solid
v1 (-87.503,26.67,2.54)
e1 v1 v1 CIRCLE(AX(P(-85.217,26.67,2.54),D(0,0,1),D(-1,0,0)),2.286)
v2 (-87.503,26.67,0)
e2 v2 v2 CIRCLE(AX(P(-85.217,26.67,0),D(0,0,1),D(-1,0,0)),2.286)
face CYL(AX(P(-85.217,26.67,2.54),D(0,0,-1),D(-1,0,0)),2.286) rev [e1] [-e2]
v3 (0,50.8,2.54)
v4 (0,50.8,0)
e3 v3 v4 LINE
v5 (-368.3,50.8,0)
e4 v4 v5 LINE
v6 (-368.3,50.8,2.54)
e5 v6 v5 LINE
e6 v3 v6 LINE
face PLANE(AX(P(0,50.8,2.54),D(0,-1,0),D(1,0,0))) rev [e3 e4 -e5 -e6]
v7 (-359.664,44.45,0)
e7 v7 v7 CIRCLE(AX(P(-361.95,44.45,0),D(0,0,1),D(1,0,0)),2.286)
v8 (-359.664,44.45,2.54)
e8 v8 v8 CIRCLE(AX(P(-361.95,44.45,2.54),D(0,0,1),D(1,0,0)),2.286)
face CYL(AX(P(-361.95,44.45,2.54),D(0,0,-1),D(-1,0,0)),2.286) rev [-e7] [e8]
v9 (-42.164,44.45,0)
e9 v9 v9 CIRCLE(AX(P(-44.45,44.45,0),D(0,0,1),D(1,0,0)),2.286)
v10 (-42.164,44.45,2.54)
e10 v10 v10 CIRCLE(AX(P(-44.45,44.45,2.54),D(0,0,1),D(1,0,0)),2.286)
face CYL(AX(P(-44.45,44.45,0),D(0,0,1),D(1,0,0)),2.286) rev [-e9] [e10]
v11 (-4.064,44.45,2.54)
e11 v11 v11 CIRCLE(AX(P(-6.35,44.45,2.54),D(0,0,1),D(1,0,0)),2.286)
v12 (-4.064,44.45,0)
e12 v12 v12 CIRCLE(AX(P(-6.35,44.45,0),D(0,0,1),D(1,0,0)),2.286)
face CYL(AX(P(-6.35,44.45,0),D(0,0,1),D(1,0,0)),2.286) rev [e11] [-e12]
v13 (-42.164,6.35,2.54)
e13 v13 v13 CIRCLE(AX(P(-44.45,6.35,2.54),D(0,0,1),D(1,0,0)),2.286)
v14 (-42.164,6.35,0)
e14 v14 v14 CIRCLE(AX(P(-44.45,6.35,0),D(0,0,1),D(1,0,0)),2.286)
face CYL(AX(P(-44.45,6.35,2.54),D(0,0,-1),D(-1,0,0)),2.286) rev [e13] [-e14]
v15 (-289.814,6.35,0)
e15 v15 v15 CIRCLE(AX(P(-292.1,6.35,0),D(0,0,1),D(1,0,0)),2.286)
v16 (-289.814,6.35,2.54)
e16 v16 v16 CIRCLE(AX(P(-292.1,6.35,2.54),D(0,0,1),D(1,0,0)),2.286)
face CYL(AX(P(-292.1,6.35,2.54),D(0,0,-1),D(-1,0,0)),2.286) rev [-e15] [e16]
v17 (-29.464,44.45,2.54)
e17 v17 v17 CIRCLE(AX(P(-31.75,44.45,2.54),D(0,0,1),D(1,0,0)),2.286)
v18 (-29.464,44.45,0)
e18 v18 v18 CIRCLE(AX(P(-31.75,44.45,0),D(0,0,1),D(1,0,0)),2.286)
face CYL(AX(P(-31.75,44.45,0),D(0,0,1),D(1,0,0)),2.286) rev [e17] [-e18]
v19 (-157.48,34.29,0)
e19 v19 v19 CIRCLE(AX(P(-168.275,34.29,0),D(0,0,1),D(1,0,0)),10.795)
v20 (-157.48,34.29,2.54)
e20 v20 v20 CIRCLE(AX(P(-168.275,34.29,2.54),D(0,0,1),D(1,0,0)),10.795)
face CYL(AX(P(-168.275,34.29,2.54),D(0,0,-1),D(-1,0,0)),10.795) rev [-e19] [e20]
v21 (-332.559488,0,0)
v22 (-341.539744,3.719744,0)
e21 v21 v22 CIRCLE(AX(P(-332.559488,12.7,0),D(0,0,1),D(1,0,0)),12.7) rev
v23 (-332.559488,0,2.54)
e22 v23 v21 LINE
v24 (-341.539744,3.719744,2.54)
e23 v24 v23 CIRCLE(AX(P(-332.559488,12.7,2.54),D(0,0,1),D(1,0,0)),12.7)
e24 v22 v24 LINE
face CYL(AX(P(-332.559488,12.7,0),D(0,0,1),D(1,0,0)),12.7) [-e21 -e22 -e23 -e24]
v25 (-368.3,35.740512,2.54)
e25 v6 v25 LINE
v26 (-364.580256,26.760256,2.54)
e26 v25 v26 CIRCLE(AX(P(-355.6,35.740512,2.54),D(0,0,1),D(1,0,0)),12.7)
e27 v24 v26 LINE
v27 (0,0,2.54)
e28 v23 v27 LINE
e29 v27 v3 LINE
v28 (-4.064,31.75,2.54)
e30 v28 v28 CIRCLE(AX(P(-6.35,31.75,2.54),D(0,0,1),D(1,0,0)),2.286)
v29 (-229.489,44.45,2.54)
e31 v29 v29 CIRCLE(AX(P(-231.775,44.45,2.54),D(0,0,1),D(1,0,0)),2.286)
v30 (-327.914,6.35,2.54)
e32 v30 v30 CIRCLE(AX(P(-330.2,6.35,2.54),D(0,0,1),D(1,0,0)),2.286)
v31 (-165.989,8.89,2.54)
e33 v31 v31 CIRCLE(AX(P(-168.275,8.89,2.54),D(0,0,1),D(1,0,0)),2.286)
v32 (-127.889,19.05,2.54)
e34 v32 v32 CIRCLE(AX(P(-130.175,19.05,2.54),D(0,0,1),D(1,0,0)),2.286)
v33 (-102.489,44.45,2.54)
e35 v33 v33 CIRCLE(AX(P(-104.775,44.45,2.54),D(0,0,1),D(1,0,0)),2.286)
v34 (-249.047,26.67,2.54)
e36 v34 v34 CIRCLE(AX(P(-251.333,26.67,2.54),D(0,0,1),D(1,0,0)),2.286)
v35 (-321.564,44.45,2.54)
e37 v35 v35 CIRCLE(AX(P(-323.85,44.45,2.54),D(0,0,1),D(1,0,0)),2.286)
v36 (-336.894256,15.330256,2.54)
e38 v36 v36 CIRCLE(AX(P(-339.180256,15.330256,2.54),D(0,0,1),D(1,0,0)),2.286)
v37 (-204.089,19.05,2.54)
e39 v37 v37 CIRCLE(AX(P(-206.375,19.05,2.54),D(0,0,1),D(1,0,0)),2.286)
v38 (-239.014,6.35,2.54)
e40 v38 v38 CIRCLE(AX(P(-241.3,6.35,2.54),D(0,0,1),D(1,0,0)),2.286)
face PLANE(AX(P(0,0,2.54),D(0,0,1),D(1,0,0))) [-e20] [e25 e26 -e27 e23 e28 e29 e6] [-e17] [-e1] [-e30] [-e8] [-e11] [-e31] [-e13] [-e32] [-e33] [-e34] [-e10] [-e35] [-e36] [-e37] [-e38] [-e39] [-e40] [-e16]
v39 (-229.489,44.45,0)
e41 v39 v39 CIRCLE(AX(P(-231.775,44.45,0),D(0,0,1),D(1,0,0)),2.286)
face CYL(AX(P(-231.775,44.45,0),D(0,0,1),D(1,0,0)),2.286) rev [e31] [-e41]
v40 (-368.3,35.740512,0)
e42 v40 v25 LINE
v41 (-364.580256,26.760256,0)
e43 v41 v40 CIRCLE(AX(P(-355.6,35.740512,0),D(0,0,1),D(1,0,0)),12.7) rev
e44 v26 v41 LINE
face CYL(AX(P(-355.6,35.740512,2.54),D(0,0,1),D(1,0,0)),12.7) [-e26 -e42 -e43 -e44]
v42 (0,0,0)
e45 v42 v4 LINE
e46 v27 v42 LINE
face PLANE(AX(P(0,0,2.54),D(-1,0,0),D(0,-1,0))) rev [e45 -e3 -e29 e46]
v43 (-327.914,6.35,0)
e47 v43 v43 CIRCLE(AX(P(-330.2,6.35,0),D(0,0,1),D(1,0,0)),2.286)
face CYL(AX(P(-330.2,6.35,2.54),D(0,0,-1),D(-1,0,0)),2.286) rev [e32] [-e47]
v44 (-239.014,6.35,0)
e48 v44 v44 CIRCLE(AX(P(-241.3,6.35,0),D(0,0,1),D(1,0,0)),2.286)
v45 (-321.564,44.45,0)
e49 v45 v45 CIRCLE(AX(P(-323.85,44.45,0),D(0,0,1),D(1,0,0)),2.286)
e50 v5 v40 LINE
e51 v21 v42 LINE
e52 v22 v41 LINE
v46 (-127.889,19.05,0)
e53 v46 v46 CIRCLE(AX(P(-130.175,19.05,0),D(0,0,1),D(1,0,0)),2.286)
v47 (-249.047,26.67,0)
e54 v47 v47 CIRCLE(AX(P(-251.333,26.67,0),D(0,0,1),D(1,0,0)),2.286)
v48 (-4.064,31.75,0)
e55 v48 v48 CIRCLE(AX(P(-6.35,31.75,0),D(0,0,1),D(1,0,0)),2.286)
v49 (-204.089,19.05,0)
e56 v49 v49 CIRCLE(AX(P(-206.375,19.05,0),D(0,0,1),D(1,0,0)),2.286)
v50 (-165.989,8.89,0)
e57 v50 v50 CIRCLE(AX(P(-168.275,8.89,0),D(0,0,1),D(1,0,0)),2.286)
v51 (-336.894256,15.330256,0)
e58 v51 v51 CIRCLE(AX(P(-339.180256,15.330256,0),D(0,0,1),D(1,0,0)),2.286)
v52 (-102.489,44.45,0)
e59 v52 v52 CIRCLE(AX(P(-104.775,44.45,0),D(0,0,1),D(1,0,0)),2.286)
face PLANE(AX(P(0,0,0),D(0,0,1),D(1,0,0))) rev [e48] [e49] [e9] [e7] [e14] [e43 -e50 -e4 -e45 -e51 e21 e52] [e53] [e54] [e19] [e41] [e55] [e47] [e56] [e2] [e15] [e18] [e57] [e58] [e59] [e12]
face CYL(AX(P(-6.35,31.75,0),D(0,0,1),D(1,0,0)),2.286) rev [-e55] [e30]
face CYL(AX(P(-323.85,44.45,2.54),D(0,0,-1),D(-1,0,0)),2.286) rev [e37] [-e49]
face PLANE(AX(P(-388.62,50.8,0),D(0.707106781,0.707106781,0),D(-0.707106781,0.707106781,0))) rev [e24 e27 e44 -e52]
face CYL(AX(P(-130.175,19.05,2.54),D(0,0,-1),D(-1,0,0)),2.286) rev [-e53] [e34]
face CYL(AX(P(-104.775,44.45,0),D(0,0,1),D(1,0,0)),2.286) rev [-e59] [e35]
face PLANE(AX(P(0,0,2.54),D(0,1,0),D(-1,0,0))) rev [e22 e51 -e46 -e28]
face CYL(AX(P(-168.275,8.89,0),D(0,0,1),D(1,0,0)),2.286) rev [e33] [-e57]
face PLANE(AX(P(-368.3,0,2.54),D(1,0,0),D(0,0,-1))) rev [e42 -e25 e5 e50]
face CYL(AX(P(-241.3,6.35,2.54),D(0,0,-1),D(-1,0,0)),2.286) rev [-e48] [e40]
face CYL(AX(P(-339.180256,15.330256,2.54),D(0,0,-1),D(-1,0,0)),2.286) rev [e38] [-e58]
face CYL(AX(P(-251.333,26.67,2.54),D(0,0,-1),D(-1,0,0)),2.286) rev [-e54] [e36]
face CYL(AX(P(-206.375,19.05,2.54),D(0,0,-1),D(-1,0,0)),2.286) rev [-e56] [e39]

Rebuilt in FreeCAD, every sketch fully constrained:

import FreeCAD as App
import Part
import Sketcher
from FreeCAD import Vector
Q = App.Units.Quantity


def edges_at(feature, points):
    """Names of the edges that pass closest to the given points."""
    edges = feature.Shape.Edges
    near = lambda p: min(range(len(edges)), key=lambda i: edges[i].distToShape(Part.Vertex(*p))[0])
    return sorted({f"Edge{near(p) + 1}" for p in points})

doc = App.newDocument("Part")
body = doc.addObject("PartDesign::Body", "Body")

# Sketch on XY plane
sketch1 = body.newObject("Sketcher::SketchObject", "Sketch")
sketch1.AttachmentSupport = (doc.getObject("XY_Plane"), [""])
sketch1.MapMode = "FlatFace"
sketch1.addGeometry([
    Part.LineSegment(Vector(-368.3, 50.8, 0), Vector(-368.3, 0, 0)),  # 0
    Part.LineSegment(Vector(-368.3, 0, 0), Vector(0, 0, 0)),  # 1
    Part.LineSegment(Vector(0, 0, 0), Vector(0, 50.8, 0)),  # 2
    Part.LineSegment(Vector(0, 50.8, 0), Vector(-368.3, 50.8, 0)),  # 3
    Part.Circle(Vector(-330.2, 6.3, 0), Vector(0, 0, 1), 2.3),  # 4
    Part.Circle(Vector(-292.1, 6.3, 0), Vector(0, 0, 1), 2.3),  # 5
    Part.Circle(Vector(-241.3, 6.3, 0), Vector(0, 0, 1), 2.3),  # 6
    Part.Circle(Vector(-339.2, 15.3, 0), Vector(0, 0, 1), 2.3),  # 7
    Part.Circle(Vector(-206.4, 19.1, 0), Vector(0, 0, 1), 2.3),  # 8
    Part.Circle(Vector(-44.5, 6.3, 0), Vector(0, 0, 1), 2.3),  # 9
    Part.Circle(Vector(-130.2, 19.1, 0), Vector(0, 0, 1), 2.3),  # 10
    Part.Circle(Vector(-251.3, 26.7, 0), Vector(0, 0, 1), 2.3),  # 11
    Part.Circle(Vector(-361.9, 44.5, 0), Vector(0, 0, 1), 2.3),  # 12
    Part.Circle(Vector(-323.9, 44.5, 0), Vector(0, 0, 1), 2.3),  # 13
    Part.Circle(Vector(-168.3, 34.3, 0), Vector(0, 0, 1), 10.8),  # 14
    Part.Circle(Vector(-85.2, 26.7, 0), Vector(0, 0, 1), 2.3),  # 15
], False)
sketch1.addConstraint([
    Sketcher.Constraint("Coincident", 0, 2, 1, 1),
    Sketcher.Constraint("Coincident", 1, 2, 2, 1),
    Sketcher.Constraint("Coincident", 2, 2, 3, 1),
    Sketcher.Constraint("Coincident", 3, 2, 0, 1),
    Sketcher.Constraint("Vertical", 0),
    Sketcher.Constraint("Horizontal", 1),
    Sketcher.Constraint("Vertical", 2),
    Sketcher.Constraint("Horizontal", 3),
    Sketcher.Constraint("Coincident", 1, 2, -1, 1),
    Sketcher.Constraint("Equal", 4, 5),
    Sketcher.Constraint("Equal", 5, 6),
    Sketcher.Constraint("Equal", 6, 7),
    Sketcher.Constraint("Equal", 7, 8),
    Sketcher.Constraint("Equal", 8, 9),
    Sketcher.Constraint("Equal", 9, 10),
    Sketcher.Constraint("Equal", 10, 11),
    Sketcher.Constraint("Equal", 11, 12),
    Sketcher.Constraint("Equal", 12, 13),
    Sketcher.Constraint("Equal", 13, 15),
    Sketcher.Constraint("Horizontal", 4, 3, 5, 3),
    Sketcher.Constraint("Horizontal", 5, 3, 6, 3),
    Sketcher.Constraint("Horizontal", 6, 3, 9, 3),
    Sketcher.Constraint("Horizontal", 8, 3, 10, 3),
    Sketcher.Constraint("Horizontal", 12, 3, 13, 3),
    Sketcher.Constraint("Horizontal", 11, 3, 15, 3),
    Sketcher.Constraint("Diameter", 4, Q("0.18 in")),
    Sketcher.Constraint("Diameter", 14, Q("0.85 in")),
    Sketcher.Constraint("DistanceY", 0, 2, 0, 1, Q("2 in")),
    Sketcher.Constraint("DistanceX", 1, 1, 1, 2, Q("14.5 in")),
    Sketcher.Constraint("DistanceX", 4, 3, -1, 1, Q("13 in")),
    Sketcher.Constraint("DistanceX", 5, 3, 6, 3, Q("2 in")),
    Sketcher.Constraint("DistanceX", 8, 3, 10, 3, Q("3 in")),
    Sketcher.Constraint("DistanceX", 0, 2, 5, 3, Q("3 in")),
    Sketcher.Constraint("DistanceY", 6, 3, 8, 3, Q("0.5 in")),
    Sketcher.Constraint("DistanceY", 6, 3, 11, 3, Q("0.8 in")),
    Sketcher.Constraint("DistanceY", 4, 3, 12, 3, Q("1.5 in")),
    Sketcher.Constraint("DistanceX", 12, 3, 13, 3, Q("1.5 in")),
    Sketcher.Constraint("DistanceX", 8, 3, 14, 3, Q("1.5 in")),
    Sketcher.Constraint("DistanceY", 8, 3, 14, 3, Q("0.6 in")),
    Sketcher.Constraint("DistanceY", -1, 1, 4, 3, Q("0.25 in")),
    Sketcher.Constraint("DistanceX", 9, 3, -1, 1, Q("1.75 in")),
    Sketcher.Constraint("DistanceX", 12, 3, -1, 1, Q("14.25 in")),
    Sketcher.Constraint("DistanceX", 11, 3, 8, 3, Q("1.77 in")),
    Sketcher.Constraint("DistanceX", 10, 3, 15, 3, Q("1.77 in")),
    Sketcher.Constraint("DistanceX", 8, 3, -1, 1, Q("8.125 in")),
    Sketcher.Constraint("DistanceX", 7, 3, -1, 1, 339.180256),
    Sketcher.Constraint("DistanceY", -1, 1, 7, 3, 15.330256),
])
pad1 = body.newObject("PartDesign::Pad", "Pad")
pad1.Profile = sketch1
pad1.Length = Q("0.1 in")

# Sketch on XY plane
sketch2 = body.newObject("Sketcher::SketchObject", "Sketch001")
sketch2.AttachmentSupport = (doc.getObject("XY_Plane"), [""])
sketch2.MapMode = "FlatFace"
sketch2.AttachmentOffset = App.Placement(Vector(0, 0, 0.1 * 25.4), App.Rotation())
sketch2.addGeometry([
    Part.LineSegment(Vector(-338, 0, 0), Vector(-389, 51, 0)),
    Part.LineSegment(Vector(-389, 51, 0), Vector(-389, 0, 0)),
    Part.LineSegment(Vector(-389, 0, 0), Vector(-338, 0, 0)),
], False)
sketch2.addConstraint([
    Sketcher.Constraint("Coincident", 0, 2, 1, 1),
    Sketcher.Constraint("Coincident", 1, 2, 2, 1),
    Sketcher.Constraint("Coincident", 2, 2, 0, 1),
    Sketcher.Constraint("Vertical", 1),
    Sketcher.Constraint("Horizontal", 2),
    Sketcher.Constraint("PointOnObject", 1, 2, -1),
    Sketcher.Constraint("Equal", 2, 1),
    Sketcher.Constraint("DistanceX", 2, 1, 2, 2, Q("2 in")),
    Sketcher.Constraint("DistanceX", 0, 2, -1, 1, Q("15.3 in")),
])
pocket1 = body.newObject("PartDesign::Pocket", "Pocket")
pocket1.Profile = sketch2
pocket1.Length = Q("0.1 in")
doc.recompute()

fillet = body.newObject("PartDesign::Fillet", "Fillet")
fillet.Base = (pocket1, edges_at(pocket1, [(-337.82, 0, 1.27), (-368.3, 30.48, 1.27)]))
fillet.Radius = Q("0.5 in")

# Sketch on XY plane
sketch3 = body.newObject("Sketcher::SketchObject", "Sketch002")
sketch3.AttachmentSupport = (doc.getObject("XY_Plane"), [""])
sketch3.MapMode = "FlatFace"
sketch3.AttachmentOffset = App.Placement(Vector(0, 0, 0.1 * 25.4), App.Rotation())
sketch3.addGeometry([
    Part.Circle(Vector(-231.8, 44.5, 0), Vector(0, 0, 1), 2.3),
    Part.Circle(Vector(-104.8, 44.5, 0), Vector(0, 0, 1), 2.3),
    Part.Circle(Vector(-168.3, 8.9, 0), Vector(0, 0, 1), 2.3),
], False)
sketch3.addConstraint([
    Sketcher.Constraint("Equal", 0, 1),
    Sketcher.Constraint("Equal", 1, 2),
    Sketcher.Constraint("Horizontal", 0, 3, 1, 3),
    Sketcher.Constraint("Diameter", 0, Q("0.18 in")),
    Sketcher.Constraint("DistanceX", 0, 3, 1, 3, Q("5 in")),
    Sketcher.Constraint("DistanceX", 0, 3, 2, 3, Q("2.5 in")),
    Sketcher.Constraint("DistanceY", 2, 3, 0, 3, Q("1.4 in")),
    Sketcher.Constraint("DistanceY", -1, 1, 0, 3, Q("1.75 in")),
    Sketcher.Constraint("DistanceX", 0, 3, -1, 1, Q("9.125 in")),
])
pocket2 = body.newObject("PartDesign::Pocket", "Pocket001")
pocket2.Profile = sketch3
pocket2.Type = "ThroughAll"

# Sketch on XY plane
sketch4 = body.newObject("Sketcher::SketchObject", "Sketch003")
sketch4.AttachmentSupport = (doc.getObject("XY_Plane"), [""])
sketch4.MapMode = "FlatFace"
sketch4.AttachmentOffset = App.Placement(Vector(0, 0, 0.1 * 25.4), App.Rotation())
sketch4.addGeometry([
    Part.Circle(Vector(-44.5, 44.5, 0), Vector(0, 0, 1), 2.3),
    Part.Circle(Vector(-31.8, 44.5, 0), Vector(0, 0, 1), 2.3),
    Part.Circle(Vector(-6.3, 44.5, 0), Vector(0, 0, 1), 2.3),
    Part.Circle(Vector(-6.3, 31.8, 0), Vector(0, 0, 1), 2.3),
], False)
sketch4.addConstraint([
    Sketcher.Constraint("Equal", 0, 1),
    Sketcher.Constraint("Equal", 1, 2),
    Sketcher.Constraint("Equal", 2, 3),
    Sketcher.Constraint("Horizontal", 0, 3, 1, 3),
    Sketcher.Constraint("Horizontal", 1, 3, 2, 3),
    Sketcher.Constraint("Vertical", 2, 3, 3, 3),
    Sketcher.Constraint("Diameter", 0, Q("0.18 in")),
    Sketcher.Constraint("DistanceX", 1, 3, 2, 3, Q("1 in")),
    Sketcher.Constraint("DistanceX", 0, 3, 1, 3, Q("0.5 in")),
    Sketcher.Constraint("DistanceY", 3, 3, 2, 3, Q("0.5 in")),
    Sketcher.Constraint("DistanceX", 0, 3, -1, 1, Q("1.75 in")),
    Sketcher.Constraint("DistanceY", -1, 1, 0, 3, Q("1.75 in")),
])
pocket3 = body.newObject("PartDesign::Pocket", "Pocket002")
pocket3.Profile = sketch4
pocket3.Type = "ThroughAll"

doc.recompute()
